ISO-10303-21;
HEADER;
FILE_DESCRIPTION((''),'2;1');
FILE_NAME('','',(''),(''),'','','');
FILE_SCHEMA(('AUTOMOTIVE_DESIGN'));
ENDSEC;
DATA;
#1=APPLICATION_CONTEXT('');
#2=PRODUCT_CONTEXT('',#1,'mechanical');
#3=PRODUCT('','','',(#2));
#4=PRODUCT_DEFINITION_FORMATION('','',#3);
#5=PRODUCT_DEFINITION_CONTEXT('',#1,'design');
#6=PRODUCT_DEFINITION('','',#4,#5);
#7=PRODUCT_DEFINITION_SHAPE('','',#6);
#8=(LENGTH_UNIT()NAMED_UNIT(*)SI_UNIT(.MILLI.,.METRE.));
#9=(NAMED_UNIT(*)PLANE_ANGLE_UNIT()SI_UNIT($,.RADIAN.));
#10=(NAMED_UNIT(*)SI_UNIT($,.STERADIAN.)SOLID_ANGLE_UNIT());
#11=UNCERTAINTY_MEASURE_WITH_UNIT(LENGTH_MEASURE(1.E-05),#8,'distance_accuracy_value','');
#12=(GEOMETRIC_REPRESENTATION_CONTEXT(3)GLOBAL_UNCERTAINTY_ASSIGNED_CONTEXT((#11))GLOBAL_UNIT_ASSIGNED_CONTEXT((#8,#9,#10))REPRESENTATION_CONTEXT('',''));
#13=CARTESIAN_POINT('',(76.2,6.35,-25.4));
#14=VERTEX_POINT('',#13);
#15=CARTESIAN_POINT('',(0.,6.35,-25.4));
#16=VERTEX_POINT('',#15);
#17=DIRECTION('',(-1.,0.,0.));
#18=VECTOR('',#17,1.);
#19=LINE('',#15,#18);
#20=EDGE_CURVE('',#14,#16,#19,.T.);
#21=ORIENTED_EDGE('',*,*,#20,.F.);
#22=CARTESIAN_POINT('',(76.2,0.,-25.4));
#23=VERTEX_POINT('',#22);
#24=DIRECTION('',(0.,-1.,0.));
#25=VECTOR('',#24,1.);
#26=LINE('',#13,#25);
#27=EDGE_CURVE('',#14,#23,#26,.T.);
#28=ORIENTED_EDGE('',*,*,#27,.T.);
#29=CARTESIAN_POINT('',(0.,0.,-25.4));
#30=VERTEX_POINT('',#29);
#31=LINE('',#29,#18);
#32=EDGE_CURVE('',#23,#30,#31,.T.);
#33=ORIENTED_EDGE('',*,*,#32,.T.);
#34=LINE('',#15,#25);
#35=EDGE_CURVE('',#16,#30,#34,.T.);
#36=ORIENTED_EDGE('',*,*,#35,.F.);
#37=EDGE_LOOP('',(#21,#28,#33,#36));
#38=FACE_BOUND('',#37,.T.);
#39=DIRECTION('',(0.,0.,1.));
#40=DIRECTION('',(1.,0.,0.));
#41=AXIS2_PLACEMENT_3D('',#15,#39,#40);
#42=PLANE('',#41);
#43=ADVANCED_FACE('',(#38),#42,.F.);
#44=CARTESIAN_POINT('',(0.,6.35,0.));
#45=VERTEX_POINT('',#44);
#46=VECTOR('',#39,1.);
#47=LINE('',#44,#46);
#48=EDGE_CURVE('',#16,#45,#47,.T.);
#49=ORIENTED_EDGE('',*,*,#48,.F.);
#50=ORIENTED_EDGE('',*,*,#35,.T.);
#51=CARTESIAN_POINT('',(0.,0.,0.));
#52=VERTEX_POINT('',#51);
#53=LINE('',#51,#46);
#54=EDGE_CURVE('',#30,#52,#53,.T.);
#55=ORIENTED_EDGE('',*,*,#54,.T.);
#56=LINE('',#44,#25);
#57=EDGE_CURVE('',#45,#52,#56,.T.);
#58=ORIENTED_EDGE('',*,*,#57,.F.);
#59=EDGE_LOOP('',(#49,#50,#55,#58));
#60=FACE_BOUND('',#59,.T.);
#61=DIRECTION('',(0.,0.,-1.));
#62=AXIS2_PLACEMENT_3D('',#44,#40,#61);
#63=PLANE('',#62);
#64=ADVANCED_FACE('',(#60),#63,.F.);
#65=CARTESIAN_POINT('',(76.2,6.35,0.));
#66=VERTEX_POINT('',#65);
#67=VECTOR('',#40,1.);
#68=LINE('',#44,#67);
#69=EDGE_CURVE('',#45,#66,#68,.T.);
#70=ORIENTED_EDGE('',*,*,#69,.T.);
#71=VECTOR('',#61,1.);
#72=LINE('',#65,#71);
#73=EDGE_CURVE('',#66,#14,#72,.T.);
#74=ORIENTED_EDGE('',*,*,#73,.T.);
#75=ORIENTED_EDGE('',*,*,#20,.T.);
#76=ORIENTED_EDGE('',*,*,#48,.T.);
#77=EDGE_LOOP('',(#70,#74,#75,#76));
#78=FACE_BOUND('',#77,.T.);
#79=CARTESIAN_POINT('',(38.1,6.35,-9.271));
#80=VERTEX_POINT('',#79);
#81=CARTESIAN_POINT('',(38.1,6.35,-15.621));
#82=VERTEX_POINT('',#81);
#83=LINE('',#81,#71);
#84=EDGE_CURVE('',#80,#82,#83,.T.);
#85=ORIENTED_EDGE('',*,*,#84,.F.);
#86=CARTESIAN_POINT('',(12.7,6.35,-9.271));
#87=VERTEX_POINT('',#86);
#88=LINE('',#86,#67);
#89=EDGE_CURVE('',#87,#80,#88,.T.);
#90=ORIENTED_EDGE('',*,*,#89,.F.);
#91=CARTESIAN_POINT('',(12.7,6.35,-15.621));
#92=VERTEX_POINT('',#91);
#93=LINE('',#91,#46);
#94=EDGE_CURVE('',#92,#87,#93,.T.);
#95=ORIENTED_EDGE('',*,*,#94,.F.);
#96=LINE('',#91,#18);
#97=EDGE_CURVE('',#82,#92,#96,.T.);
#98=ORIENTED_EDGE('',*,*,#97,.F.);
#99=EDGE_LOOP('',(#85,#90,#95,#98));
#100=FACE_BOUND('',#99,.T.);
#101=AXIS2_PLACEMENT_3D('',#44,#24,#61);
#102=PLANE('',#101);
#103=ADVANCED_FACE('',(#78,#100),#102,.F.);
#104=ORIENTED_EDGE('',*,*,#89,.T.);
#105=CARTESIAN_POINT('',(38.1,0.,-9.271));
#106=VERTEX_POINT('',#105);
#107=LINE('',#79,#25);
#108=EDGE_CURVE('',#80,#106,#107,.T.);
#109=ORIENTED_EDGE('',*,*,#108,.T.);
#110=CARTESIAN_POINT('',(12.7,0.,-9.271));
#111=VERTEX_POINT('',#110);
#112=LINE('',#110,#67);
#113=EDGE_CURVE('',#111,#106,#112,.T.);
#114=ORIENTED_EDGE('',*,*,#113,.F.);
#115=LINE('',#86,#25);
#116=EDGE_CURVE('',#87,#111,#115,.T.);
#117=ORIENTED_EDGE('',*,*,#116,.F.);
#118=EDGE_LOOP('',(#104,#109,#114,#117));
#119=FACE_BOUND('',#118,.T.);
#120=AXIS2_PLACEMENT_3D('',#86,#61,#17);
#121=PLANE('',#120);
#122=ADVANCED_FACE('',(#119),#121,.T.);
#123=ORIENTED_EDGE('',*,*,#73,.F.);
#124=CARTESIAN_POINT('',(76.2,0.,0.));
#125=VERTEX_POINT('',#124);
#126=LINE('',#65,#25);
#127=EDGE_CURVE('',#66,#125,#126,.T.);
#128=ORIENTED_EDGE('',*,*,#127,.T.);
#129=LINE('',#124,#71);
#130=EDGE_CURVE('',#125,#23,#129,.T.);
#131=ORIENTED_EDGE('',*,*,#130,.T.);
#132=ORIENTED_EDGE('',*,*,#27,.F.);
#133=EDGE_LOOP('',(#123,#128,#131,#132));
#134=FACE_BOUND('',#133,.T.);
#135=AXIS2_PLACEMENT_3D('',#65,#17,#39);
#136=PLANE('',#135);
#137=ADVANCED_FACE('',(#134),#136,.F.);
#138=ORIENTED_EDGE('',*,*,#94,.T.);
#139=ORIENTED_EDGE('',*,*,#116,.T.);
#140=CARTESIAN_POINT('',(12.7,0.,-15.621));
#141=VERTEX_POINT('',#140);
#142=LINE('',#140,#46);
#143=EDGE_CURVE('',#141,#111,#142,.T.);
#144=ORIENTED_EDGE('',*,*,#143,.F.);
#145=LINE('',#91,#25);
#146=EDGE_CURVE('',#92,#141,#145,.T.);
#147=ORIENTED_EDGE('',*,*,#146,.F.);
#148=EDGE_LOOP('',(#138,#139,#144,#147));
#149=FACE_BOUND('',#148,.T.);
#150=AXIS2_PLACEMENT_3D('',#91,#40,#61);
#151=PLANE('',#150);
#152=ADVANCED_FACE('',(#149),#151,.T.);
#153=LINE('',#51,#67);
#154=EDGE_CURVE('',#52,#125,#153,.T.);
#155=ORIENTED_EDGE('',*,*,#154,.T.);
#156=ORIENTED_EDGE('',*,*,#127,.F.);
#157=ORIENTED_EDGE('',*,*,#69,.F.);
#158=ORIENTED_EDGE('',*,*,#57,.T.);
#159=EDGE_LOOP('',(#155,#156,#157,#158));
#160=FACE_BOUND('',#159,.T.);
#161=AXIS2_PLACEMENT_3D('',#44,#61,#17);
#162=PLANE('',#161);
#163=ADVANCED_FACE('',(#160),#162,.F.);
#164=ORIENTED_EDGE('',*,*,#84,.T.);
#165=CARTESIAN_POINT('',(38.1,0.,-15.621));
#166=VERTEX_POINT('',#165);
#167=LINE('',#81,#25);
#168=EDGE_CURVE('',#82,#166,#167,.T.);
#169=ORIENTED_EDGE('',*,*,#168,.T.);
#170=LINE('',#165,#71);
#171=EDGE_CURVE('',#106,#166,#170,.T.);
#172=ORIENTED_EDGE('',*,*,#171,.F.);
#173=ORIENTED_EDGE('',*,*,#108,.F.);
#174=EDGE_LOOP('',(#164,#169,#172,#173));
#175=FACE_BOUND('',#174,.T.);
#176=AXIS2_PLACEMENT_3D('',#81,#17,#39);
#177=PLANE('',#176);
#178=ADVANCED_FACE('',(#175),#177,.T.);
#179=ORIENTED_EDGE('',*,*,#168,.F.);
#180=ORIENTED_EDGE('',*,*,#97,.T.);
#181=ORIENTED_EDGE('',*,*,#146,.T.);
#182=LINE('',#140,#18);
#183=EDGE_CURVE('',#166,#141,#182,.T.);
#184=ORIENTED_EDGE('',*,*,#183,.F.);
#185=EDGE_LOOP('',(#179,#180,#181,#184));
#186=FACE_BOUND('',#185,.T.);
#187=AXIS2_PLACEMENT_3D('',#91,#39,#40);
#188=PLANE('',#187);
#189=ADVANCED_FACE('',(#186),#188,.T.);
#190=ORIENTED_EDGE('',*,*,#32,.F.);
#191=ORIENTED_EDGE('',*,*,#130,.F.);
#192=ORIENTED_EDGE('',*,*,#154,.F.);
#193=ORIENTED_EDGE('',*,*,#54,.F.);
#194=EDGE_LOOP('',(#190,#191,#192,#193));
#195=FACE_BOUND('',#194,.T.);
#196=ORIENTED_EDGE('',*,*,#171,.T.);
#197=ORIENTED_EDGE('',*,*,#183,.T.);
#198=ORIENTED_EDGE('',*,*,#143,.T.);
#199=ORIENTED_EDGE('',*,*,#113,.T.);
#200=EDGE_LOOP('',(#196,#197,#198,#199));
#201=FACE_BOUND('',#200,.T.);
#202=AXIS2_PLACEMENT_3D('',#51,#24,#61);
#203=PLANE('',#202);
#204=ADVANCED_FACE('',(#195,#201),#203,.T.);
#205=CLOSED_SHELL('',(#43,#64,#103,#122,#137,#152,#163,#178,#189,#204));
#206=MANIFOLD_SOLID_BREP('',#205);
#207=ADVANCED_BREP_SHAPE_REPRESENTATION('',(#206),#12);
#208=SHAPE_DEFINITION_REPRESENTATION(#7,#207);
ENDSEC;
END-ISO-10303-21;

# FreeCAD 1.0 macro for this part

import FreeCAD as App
import Part
import Sketcher
Q = App.Units.Quantity


def add_polygon(sketch, points):
    """Adds a closed chain of lines whose ends are joined by coincident constraints."""
    first, n = sketch.GeometryCount, len(points)
    for a, b in zip(points, points[1:] + points[:1]):
        sketch.addGeometry(Part.LineSegment(App.Vector(*a, 0), App.Vector(*b, 0)), False)
    for i in range(n):
        sketch.addConstraint(Sketcher.Constraint("Coincident", first + i, 2, first + (i + 1) % n, 1))

doc = App.newDocument("Part")
body = doc.addObject("PartDesign::Body", "Body")

sketch1 = body.newObject("Sketcher::SketchObject", "Sketch")
sketch1.AttachmentSupport = (doc.getObject("XZ_Plane"), [""])
sketch1.MapMode = "FlatFace"
add_polygon(sketch1, [(0, -25), (0, 0), (76, 0), (76, -25)])
add_polygon(sketch1, [(38, -9), (13, -9), (13, -16), (38, -16)])
sketch1.addConstraint([
    Sketcher.Constraint("Vertical", 0),
    Sketcher.Constraint("Horizontal", 1),
    Sketcher.Constraint("Vertical", 2),
    Sketcher.Constraint("Horizontal", 3),
    Sketcher.Constraint("Horizontal", 4),
    Sketcher.Constraint("Vertical", 5),
    Sketcher.Constraint("Horizontal", 6),
    Sketcher.Constraint("Vertical", 7),
    Sketcher.Constraint("Coincident", 0, 2, -1, 1),
    Sketcher.Constraint("Equal", 6, 0),
    Sketcher.Constraint("DistanceX", 1, 1, 1, 2, Q("3 in")),
    Sketcher.Constraint("DistanceX", 4, 2, 4, 1, Q("1 in")),
    Sketcher.Constraint("DistanceY", 5, 2, 5, 1, Q("0.25 in")),
    Sketcher.Constraint("DistanceX", -1, 1, 4, 2, Q("0.5 in")),
    Sketcher.Constraint("DistanceY", 4, 2, -1, 1, Q("0.365 in")),
])
pad1 = body.newObject("PartDesign::Pad", "Pad")
pad1.Profile = sketch1
pad1.Length = Q("0.25 in")
pad1.Reversed = True

doc.recompute()
